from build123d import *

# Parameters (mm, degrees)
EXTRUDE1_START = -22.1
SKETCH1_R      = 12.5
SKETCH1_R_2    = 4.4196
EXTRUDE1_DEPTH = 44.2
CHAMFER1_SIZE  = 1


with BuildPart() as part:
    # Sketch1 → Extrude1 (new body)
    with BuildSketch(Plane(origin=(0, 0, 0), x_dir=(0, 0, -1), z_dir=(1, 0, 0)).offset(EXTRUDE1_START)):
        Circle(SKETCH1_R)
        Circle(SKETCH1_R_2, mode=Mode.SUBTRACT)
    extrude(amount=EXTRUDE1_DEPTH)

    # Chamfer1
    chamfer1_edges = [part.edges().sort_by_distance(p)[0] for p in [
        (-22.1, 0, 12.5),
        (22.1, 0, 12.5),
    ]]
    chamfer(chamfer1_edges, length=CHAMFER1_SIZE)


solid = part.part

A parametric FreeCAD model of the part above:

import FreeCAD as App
import Part
import Sketcher
from FreeCAD import Vector
Q = App.Units.Quantity


def edges_at(feature, points):
    """Names of the edges that pass closest to the given points."""
    edges = feature.Shape.Edges
    near = lambda p: min(range(len(edges)), key=lambda i: edges[i].distToShape(Part.Vertex(*p))[0])
    return sorted({f"Edge{near(p) + 1}" for p in points})

doc = App.newDocument("Part")
body = doc.addObject("PartDesign::Body", "Body")

sketch1 = doc.addObject("Sketcher::SketchObject", "Sketch")
body.addObject(sketch1)
sketch1.AttachmentSupport = (doc.YZ_Plane, [""])
sketch1.MapMode = "FlatFace"
sketch1.AttachmentOffset = App.Placement(Vector(0, 0, -22.1), App.Rotation())
sketch1.addGeometry([
    Part.Circle(Vector(0, 0, 0), Vector(0, 0, 1), 12.5),
    Part.Circle(Vector(0, 0, 0), Vector(0, 0, 1), 4.4196),
], False)
sketch1.addConstraint([
    Sketcher.Constraint("Coincident", 0, 3, -1, 1),
    Sketcher.Constraint("Coincident", 1, 3, -1, 1),
    Sketcher.Constraint("Diameter", 0, Q("25 mm")),
    Sketcher.Constraint("Diameter", 1, Q("8.8392 mm")),
])
pad1 = doc.addObject("PartDesign::Pad", "Pad")
body.addObject(pad1)
pad1.Profile = sketch1
pad1.Length = 44.2
doc.recompute()

chamfer = doc.addObject("PartDesign::Chamfer", "Chamfer")
body.addObject(chamfer)
chamfer.Base = (pad1, edges_at(pad1, [(-22.1, 0, 12.5), (22.1, 0, 12.5)]))
chamfer.Size = 1

doc.recompute()
